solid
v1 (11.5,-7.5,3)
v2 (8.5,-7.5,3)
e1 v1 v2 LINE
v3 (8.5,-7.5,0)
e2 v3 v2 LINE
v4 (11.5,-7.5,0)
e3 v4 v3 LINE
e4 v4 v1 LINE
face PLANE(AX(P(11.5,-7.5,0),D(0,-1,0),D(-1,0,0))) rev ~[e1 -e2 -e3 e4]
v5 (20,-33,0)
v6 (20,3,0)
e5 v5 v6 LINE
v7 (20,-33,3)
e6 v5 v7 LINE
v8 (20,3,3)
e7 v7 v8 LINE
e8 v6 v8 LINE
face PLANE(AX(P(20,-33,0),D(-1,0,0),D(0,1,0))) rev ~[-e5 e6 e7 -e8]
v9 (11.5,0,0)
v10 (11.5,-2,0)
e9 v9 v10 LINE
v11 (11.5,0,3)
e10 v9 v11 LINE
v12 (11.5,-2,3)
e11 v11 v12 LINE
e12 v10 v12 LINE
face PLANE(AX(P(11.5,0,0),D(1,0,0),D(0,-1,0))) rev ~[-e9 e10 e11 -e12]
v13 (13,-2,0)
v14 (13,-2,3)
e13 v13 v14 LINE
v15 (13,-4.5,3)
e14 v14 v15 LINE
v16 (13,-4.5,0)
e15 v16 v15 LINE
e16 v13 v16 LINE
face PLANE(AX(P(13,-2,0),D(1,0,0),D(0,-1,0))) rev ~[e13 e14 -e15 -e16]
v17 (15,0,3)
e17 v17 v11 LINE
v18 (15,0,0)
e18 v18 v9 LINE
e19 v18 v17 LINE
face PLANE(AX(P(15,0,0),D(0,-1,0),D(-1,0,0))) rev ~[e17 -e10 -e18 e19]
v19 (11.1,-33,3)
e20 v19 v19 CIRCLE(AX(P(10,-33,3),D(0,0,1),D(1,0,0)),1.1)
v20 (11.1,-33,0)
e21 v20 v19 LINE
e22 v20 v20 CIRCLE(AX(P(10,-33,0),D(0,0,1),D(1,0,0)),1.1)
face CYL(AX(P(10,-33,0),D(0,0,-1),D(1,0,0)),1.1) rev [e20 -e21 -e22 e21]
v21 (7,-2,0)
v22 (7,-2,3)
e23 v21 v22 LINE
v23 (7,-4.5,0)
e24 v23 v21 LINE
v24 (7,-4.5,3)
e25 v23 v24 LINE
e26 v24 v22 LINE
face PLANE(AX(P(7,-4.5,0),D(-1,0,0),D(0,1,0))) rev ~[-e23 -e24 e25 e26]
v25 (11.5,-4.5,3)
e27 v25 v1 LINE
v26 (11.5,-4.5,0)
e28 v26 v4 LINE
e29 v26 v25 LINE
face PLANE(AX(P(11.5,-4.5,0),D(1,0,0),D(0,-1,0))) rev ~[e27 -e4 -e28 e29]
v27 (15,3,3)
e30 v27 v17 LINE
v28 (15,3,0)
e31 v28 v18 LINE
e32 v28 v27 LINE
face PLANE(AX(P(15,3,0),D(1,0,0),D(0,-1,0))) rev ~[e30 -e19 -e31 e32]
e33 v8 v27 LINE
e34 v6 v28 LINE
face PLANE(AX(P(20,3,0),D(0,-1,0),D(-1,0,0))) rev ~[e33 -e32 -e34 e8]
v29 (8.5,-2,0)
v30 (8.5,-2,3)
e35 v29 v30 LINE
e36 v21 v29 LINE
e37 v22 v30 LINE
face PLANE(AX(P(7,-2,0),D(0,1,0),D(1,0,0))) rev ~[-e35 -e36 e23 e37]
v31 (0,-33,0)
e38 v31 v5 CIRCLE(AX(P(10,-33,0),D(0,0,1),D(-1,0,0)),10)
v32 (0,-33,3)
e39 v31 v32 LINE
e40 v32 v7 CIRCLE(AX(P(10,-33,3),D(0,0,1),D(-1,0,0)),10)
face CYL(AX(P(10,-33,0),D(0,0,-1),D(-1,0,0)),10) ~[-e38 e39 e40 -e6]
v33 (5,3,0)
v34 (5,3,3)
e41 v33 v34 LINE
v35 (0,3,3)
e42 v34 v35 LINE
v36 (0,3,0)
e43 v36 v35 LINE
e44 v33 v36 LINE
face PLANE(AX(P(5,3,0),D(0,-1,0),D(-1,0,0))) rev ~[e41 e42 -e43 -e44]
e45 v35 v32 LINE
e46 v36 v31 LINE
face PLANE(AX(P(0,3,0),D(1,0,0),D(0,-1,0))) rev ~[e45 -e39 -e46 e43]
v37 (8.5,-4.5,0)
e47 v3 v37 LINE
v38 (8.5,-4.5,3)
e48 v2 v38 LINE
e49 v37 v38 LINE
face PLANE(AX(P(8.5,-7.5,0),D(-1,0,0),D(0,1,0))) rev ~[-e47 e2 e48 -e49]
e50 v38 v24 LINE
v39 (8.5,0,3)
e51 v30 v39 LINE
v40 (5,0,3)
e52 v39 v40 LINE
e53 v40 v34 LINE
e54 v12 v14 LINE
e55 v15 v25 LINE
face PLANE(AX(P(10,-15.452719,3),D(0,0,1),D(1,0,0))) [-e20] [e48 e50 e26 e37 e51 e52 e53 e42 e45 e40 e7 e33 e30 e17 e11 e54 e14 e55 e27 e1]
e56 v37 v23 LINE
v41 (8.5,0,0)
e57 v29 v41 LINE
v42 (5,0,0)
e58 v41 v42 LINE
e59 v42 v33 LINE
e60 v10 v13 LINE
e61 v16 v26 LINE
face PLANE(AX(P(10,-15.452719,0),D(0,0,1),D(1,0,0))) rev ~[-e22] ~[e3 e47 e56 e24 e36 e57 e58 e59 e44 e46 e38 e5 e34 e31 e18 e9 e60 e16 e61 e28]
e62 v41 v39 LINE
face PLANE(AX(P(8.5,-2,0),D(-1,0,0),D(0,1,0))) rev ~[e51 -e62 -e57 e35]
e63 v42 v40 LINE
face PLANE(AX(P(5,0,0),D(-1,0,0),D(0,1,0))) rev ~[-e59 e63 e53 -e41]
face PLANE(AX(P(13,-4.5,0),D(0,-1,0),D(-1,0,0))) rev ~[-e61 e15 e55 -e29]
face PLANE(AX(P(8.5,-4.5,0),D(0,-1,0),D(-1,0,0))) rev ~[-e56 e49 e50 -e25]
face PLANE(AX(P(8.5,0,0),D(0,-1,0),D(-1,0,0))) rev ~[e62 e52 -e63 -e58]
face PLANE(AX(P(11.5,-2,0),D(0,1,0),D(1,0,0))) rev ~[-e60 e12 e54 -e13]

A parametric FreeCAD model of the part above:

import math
import FreeCAD as App
import Part
import Sketcher
Q = App.Units.Quantity

doc = App.newDocument("Part")
body = doc.addObject("PartDesign::Body", "Body")

# Sketch on XY plane
sketch1 = doc.addObject("Sketcher::SketchObject", "Sketch")
body.addObject(sketch1)
sketch1.AttachmentSupport = (doc.XY_Plane, [""])
sketch1.MapMode = "FlatFace"
sketch1.addGeometry([
    Part.LineSegment(App.Vector(8.5, 0, 0), App.Vector(5, 0, 0)),  # 0
    Part.LineSegment(App.Vector(5, 0, 0), App.Vector(5, 3, 0)),  # 1
    Part.LineSegment(App.Vector(5, 3, 0), App.Vector(0, 3, 0)),  # 2
    Part.LineSegment(App.Vector(0, 3, 0), App.Vector(0, -33, 0)),  # 3
    Part.ArcOfCircle(Part.Circle(App.Vector(10, -33, 0), App.Vector(0, 0, 1), 10), math.radians(180), math.radians(360)),  # 4
    Part.LineSegment(App.Vector(20, -33, 0), App.Vector(20, 3, 0)),  # 5
    Part.LineSegment(App.Vector(20, 3, 0), App.Vector(15, 3, 0)),  # 6
    Part.LineSegment(App.Vector(15, 3, 0), App.Vector(15, 0, 0)),  # 7
    Part.LineSegment(App.Vector(15, 0, 0), App.Vector(11.5, 0, 0)),  # 8
    Part.LineSegment(App.Vector(11.5, 0, 0), App.Vector(11.5, -2, 0)),  # 9
    Part.LineSegment(App.Vector(11.5, -2, 0), App.Vector(13, -2, 0)),  # 10
    Part.LineSegment(App.Vector(13, -2, 0), App.Vector(13, -4.5, 0)),  # 11
    Part.LineSegment(App.Vector(13, -4.5, 0), App.Vector(11.5, -4.5, 0)),  # 12
    Part.LineSegment(App.Vector(11.5, -4.5, 0), App.Vector(11.5, -7.5, 0)),  # 13
    Part.LineSegment(App.Vector(11.5, -7.5, 0), App.Vector(8.5, -7.5, 0)),  # 14
    Part.LineSegment(App.Vector(8.5, -7.5, 0), App.Vector(8.5, -4.5, 0)),  # 15
    Part.LineSegment(App.Vector(8.5, -4.5, 0), App.Vector(7, -4.5, 0)),  # 16
    Part.LineSegment(App.Vector(7, -4.5, 0), App.Vector(7, -2, 0)),  # 17
    Part.LineSegment(App.Vector(7, -2, 0), App.Vector(8.5, -2, 0)),  # 18
    Part.LineSegment(App.Vector(8.5, -2, 0), App.Vector(8.5, 0, 0)),  # 19
    Part.Circle(App.Vector(10, -33, 0), App.Vector(0, 0, 1), 1.1),  # 20
], False)
sketch1.addConstraint([
    Sketcher.Constraint("Coincident", 0, 2, 1, 1),
    Sketcher.Constraint("Coincident", 1, 2, 2, 1),
    Sketcher.Constraint("Coincident", 2, 2, 3, 1),
    Sketcher.Constraint("Tangent", 3, 2, 4, 1),
    Sketcher.Constraint("Tangent", 4, 2, 5, 1),
    Sketcher.Constraint("Coincident", 5, 2, 6, 1),
    Sketcher.Constraint("Coincident", 6, 2, 7, 1),
    Sketcher.Constraint("Coincident", 7, 2, 8, 1),
    Sketcher.Constraint("Coincident", 8, 2, 9, 1),
    Sketcher.Constraint("Coincident", 9, 2, 10, 1),
    Sketcher.Constraint("Coincident", 10, 2, 11, 1),
    Sketcher.Constraint("Coincident", 11, 2, 12, 1),
    Sketcher.Constraint("Coincident", 12, 2, 13, 1),
    Sketcher.Constraint("Coincident", 13, 2, 14, 1),
    Sketcher.Constraint("Coincident", 14, 2, 15, 1),
    Sketcher.Constraint("Coincident", 15, 2, 16, 1),
    Sketcher.Constraint("Coincident", 16, 2, 17, 1),
    Sketcher.Constraint("Coincident", 17, 2, 18, 1),
    Sketcher.Constraint("Coincident", 18, 2, 19, 1),
    Sketcher.Constraint("Coincident", 19, 2, 0, 1),
    Sketcher.Constraint("Horizontal", 0),
    Sketcher.Constraint("Vertical", 1),
    Sketcher.Constraint("Horizontal", 2),
    Sketcher.Constraint("Vertical", 3),
    Sketcher.Constraint("Vertical", 5),
    Sketcher.Constraint("Horizontal", 6),
    Sketcher.Constraint("Vertical", 7),
    Sketcher.Constraint("Horizontal", 8),
    Sketcher.Constraint("Vertical", 9),
    Sketcher.Constraint("Horizontal", 10),
    Sketcher.Constraint("Vertical", 11),
    Sketcher.Constraint("Horizontal", 12),
    Sketcher.Constraint("Vertical", 13),
    Sketcher.Constraint("Horizontal", 14),
    Sketcher.Constraint("Vertical", 15),
    Sketcher.Constraint("Horizontal", 16),
    Sketcher.Constraint("Vertical", 17),
    Sketcher.Constraint("Horizontal", 18),
    Sketcher.Constraint("Vertical", 19),
    Sketcher.Constraint("Coincident", 20, 3, 4, 3),
    Sketcher.Constraint("PointOnObject", 0, 2, -1),
    Sketcher.Constraint("PointOnObject", 2, 2, -2),
    Sketcher.Constraint("PointOnObject", 7, 2, -1),
    Sketcher.Constraint("Horizontal", 2, 2, 5, 2),
    Sketcher.Constraint("Horizontal", 12, 2, 15, 2),
    Sketcher.Constraint("Horizontal", 10, 2, 17, 2),
    Sketcher.Constraint("Vertical", 9, 2, 12, 2),
    Sketcher.Constraint("Vertical", 15, 2, 18, 2),
    Sketcher.Constraint("Equal", 2, 6),
    Sketcher.Constraint("Equal", 0, 8),
    Sketcher.Constraint("Equal", 12, 16),
    Sketcher.Constraint("Equal", 14, 1),
    Sketcher.Constraint("Equal", 7, 13),
    Sketcher.Constraint("Radius", 4, Q("10 mm")),
    Sketcher.Constraint("Diameter", 20, Q("2.2 mm")),
    Sketcher.Constraint("DistanceX", 2, 2, 2, 1, Q("5 mm")),
    Sketcher.Constraint("DistanceX", 14, 2, 14, 1, Q("3 mm")),
    Sketcher.Constraint("DistanceY", 3, 2, 3, 1, Q("36 mm")),
    Sketcher.Constraint("DistanceY", 9, 2, 9, 1, Q("2 mm")),
    Sketcher.Constraint("DistanceX", 10, 1, 10, 2, Q("1.5 mm")),
    Sketcher.Constraint("DistanceY", 11, 2, 11, 1, Q("2.5 mm")),
])
pad1 = doc.addObject("PartDesign::Pad", "Pad")
body.addObject(pad1)
pad1.Profile = sketch1
pad1.Length = 3

doc.recompute()
